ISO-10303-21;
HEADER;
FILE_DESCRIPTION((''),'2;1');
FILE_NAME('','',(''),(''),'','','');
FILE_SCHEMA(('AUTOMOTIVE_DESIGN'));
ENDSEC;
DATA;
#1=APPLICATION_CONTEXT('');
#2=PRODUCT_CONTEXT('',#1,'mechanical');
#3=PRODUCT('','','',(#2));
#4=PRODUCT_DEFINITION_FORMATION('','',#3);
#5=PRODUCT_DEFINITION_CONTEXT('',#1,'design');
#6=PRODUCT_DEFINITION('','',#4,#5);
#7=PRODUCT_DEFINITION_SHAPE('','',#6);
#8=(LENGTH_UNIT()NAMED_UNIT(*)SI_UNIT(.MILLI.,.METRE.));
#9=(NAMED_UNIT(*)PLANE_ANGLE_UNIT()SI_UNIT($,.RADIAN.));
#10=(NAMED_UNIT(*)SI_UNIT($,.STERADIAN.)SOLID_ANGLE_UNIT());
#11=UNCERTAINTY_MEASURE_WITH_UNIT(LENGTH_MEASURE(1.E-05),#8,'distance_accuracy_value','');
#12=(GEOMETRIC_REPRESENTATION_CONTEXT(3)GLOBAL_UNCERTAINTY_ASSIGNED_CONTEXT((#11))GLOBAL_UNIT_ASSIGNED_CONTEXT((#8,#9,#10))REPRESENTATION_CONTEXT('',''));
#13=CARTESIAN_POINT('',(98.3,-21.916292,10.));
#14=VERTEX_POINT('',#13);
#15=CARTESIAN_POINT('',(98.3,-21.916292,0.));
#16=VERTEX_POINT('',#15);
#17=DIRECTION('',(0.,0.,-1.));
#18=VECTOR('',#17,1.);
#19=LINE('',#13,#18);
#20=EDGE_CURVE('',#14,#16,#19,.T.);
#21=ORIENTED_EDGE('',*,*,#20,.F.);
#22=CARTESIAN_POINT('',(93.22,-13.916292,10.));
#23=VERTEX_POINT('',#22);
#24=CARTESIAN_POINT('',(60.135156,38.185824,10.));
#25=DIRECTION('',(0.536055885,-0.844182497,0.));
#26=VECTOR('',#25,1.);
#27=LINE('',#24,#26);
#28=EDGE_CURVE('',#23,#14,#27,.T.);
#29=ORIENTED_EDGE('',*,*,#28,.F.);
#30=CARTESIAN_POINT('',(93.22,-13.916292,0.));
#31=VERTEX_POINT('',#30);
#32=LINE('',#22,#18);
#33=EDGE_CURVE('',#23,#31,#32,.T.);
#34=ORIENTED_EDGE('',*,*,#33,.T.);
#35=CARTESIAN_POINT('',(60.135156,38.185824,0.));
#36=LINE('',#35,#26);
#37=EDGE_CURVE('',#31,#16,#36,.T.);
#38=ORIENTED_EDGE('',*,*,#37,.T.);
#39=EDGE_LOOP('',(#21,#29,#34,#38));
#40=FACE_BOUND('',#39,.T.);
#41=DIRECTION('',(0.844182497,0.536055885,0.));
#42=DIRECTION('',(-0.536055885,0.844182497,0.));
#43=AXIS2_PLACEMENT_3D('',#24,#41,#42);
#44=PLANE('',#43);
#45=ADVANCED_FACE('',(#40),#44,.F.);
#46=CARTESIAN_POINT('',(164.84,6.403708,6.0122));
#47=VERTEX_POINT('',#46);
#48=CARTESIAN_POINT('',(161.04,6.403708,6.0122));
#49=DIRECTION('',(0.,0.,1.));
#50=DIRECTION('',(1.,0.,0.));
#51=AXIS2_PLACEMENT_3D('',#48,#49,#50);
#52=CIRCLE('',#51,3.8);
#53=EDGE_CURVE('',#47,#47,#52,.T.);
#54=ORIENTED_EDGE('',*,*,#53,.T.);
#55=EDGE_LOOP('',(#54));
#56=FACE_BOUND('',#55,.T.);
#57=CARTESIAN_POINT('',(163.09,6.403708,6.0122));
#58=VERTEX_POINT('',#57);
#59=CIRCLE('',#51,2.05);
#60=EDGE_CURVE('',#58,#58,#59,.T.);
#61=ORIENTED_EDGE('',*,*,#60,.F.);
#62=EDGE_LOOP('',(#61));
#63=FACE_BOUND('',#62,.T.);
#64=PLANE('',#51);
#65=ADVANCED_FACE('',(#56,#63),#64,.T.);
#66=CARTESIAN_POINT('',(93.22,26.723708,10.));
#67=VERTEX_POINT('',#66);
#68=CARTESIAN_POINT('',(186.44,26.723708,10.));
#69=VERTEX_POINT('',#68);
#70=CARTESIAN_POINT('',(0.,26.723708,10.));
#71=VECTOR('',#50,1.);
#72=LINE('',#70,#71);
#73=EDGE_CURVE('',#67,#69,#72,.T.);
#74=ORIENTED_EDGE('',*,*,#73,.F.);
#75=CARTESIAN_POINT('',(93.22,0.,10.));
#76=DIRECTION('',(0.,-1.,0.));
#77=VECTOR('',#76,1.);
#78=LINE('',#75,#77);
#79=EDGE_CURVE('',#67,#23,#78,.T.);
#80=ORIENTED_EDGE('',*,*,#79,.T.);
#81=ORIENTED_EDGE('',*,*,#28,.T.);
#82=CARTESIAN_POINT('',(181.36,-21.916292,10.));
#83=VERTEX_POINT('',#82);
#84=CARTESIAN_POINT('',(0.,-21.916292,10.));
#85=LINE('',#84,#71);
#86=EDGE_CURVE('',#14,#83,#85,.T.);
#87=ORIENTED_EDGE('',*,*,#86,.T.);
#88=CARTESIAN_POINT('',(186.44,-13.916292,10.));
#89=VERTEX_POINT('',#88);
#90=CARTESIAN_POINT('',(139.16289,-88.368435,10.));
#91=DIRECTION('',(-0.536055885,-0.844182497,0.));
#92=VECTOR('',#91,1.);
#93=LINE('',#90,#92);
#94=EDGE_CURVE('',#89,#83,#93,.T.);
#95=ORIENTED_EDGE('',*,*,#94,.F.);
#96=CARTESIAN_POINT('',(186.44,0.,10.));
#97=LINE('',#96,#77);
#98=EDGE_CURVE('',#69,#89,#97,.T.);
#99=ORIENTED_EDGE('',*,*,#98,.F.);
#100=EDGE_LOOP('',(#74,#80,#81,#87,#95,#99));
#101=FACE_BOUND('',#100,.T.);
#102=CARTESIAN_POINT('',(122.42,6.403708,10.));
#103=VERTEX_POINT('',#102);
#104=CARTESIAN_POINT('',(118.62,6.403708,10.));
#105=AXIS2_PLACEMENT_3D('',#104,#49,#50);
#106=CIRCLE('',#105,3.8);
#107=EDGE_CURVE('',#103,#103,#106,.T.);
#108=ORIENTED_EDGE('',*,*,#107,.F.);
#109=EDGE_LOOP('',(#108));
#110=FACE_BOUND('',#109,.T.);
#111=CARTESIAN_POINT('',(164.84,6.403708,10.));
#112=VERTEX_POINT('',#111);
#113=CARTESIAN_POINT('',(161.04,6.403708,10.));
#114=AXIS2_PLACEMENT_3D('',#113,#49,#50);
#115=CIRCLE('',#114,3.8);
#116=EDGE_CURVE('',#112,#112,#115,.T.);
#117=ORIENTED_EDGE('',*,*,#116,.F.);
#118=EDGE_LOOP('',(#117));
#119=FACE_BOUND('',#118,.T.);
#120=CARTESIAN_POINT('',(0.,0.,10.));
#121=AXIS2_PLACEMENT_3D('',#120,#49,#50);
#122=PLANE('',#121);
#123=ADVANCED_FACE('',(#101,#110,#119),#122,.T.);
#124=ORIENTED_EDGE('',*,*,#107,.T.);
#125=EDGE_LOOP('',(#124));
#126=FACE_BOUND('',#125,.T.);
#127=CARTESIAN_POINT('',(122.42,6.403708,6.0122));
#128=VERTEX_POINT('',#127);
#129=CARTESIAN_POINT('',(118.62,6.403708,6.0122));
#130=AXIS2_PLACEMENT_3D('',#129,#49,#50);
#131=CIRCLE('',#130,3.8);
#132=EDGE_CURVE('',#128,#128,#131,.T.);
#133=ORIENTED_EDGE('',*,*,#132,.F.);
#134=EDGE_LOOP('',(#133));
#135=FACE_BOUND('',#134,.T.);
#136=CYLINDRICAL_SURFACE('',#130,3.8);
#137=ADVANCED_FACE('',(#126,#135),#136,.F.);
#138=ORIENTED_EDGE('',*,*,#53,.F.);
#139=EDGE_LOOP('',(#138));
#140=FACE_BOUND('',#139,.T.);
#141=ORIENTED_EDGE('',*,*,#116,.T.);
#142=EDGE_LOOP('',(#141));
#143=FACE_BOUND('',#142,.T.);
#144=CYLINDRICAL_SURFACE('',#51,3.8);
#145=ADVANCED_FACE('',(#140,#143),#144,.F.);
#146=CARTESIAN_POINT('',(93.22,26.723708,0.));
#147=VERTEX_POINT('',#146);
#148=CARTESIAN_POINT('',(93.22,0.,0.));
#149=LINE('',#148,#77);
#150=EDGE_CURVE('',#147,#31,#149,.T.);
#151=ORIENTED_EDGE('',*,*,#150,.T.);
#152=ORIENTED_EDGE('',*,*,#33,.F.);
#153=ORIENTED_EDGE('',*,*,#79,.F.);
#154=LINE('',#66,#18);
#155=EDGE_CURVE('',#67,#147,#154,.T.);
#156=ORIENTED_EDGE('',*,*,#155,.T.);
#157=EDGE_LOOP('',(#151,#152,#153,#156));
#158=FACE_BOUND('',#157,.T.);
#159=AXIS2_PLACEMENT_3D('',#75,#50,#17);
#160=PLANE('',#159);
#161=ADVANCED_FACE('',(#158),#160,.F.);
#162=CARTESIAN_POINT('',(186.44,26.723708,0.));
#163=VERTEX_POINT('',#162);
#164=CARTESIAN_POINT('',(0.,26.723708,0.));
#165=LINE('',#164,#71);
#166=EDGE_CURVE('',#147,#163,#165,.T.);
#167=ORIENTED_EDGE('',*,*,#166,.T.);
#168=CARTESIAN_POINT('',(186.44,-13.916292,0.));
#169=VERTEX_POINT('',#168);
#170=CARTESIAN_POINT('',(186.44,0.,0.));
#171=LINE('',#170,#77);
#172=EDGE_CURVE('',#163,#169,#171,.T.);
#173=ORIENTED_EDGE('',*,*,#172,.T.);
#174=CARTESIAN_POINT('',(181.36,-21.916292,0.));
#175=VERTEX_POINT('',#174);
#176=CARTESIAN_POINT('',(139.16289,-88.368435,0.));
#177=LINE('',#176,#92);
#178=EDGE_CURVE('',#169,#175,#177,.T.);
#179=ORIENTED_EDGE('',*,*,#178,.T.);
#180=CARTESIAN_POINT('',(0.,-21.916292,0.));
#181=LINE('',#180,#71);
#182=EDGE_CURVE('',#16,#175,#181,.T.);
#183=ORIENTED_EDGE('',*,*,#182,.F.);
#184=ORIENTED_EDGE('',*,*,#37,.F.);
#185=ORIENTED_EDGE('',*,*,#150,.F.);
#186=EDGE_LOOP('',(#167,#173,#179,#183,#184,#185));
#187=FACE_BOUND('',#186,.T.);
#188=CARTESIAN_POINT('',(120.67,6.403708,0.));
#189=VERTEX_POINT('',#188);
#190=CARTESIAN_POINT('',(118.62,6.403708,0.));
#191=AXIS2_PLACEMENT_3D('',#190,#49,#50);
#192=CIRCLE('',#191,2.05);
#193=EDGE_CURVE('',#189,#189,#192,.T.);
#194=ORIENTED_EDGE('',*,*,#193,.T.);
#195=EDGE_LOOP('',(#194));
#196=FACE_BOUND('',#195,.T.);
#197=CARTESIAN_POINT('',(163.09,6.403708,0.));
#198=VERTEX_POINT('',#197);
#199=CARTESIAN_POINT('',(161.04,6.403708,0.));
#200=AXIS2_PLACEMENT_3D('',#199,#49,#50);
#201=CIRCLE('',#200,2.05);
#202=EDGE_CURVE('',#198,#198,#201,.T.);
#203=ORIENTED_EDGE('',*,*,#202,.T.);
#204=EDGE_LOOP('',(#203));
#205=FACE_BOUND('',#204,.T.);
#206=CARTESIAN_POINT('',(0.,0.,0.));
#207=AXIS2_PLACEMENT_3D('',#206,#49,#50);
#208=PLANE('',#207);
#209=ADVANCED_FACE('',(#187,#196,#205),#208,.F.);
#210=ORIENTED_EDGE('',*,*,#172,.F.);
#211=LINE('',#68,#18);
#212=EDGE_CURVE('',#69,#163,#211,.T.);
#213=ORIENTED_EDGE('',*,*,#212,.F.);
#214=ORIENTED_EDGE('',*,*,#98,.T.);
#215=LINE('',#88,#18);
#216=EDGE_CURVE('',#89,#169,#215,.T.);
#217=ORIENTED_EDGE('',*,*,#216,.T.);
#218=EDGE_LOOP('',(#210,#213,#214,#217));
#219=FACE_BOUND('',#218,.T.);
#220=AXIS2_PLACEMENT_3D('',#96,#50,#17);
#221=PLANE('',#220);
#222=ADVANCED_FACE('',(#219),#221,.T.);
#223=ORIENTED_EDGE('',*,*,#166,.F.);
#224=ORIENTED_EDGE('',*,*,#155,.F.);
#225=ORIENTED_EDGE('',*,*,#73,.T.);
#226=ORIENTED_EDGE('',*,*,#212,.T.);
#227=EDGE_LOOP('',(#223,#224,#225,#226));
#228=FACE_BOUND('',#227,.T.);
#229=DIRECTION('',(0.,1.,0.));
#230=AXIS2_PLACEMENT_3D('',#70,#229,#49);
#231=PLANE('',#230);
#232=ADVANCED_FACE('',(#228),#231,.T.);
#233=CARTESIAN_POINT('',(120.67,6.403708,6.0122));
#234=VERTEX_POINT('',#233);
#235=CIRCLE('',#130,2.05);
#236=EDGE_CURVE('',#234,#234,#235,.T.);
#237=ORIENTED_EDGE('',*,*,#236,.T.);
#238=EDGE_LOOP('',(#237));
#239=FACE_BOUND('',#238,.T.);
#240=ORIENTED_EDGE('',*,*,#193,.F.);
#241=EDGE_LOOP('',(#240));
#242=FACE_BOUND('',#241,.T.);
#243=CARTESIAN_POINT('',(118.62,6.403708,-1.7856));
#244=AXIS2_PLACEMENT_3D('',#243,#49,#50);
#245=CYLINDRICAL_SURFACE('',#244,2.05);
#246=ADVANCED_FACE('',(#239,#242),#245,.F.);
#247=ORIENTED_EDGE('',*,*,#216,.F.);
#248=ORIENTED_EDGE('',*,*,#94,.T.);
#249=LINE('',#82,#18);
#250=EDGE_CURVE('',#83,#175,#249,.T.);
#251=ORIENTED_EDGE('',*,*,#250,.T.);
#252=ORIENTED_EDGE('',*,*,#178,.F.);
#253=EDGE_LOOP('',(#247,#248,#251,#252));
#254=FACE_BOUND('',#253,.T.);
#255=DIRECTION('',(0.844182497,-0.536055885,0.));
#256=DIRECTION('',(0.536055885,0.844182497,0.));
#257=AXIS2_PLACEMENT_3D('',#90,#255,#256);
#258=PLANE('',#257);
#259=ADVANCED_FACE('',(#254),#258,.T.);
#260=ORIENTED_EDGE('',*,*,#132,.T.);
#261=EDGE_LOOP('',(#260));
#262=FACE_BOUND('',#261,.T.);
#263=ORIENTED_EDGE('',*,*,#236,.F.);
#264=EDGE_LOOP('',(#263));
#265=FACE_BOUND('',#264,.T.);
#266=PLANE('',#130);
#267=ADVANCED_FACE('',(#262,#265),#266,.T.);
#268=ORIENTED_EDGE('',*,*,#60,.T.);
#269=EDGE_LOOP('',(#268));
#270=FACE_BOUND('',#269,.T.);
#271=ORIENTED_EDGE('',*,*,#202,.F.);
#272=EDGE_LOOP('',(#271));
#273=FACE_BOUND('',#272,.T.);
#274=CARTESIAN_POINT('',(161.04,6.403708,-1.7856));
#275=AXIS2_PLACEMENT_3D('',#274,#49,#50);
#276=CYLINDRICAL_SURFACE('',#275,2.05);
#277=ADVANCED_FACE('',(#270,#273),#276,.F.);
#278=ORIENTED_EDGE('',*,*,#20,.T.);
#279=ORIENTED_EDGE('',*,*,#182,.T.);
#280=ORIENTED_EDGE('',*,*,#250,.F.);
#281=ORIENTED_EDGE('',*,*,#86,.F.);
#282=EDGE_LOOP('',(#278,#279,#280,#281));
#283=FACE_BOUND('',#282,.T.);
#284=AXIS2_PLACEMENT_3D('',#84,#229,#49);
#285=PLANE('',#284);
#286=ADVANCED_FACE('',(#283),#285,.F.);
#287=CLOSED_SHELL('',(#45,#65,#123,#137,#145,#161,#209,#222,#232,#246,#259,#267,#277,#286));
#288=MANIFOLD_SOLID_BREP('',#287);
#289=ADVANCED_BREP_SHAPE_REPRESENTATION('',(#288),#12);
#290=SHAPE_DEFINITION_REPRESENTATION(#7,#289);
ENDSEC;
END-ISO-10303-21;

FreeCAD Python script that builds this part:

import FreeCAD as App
import Part
import Sketcher
from FreeCAD import Vector
Q = App.Units.Quantity

doc = App.newDocument("Part")
body = doc.addObject("PartDesign::Body", "Body")

sketch1 = body.newObject("Sketcher::SketchObject", "Sketch")
sketch1.AttachmentSupport = (doc.getObject("XY_Plane"), [""])
sketch1.MapMode = "FlatFace"
sketch1.addGeometry([
    Part.LineSegment(Vector(181.36, -21.916292, 0), Vector(186.44, -13.916292, 0)),
    Part.LineSegment(Vector(186.44, -13.916292, 0), Vector(186.44, 26.723708, 0)),
    Part.LineSegment(Vector(186.44, 26.723708, 0), Vector(93.22, 26.723708, 0)),
    Part.LineSegment(Vector(93.22, 26.723708, 0), Vector(93.22, -13.916292, 0)),
    Part.LineSegment(Vector(93.22, -13.916292, 0), Vector(98.3, -21.916292, 0)),
    Part.LineSegment(Vector(98.3, -21.916292, 0), Vector(181.36, -21.916292, 0)),
], False)
sketch1.addConstraint([
    Sketcher.Constraint("Coincident", 0, 2, 1, 1),
    Sketcher.Constraint("Coincident", 1, 2, 2, 1),
    Sketcher.Constraint("Coincident", 2, 2, 3, 1),
    Sketcher.Constraint("Coincident", 3, 2, 4, 1),
    Sketcher.Constraint("Coincident", 4, 2, 5, 1),
    Sketcher.Constraint("Coincident", 5, 2, 0, 1),
    Sketcher.Constraint("Vertical", 1),
    Sketcher.Constraint("Horizontal", 2),
    Sketcher.Constraint("Vertical", 3),
    Sketcher.Constraint("Horizontal", 5),
    Sketcher.Constraint("Horizontal", 0, 2, 3, 2),
    Sketcher.Constraint("Equal", 0, 4),
    Sketcher.Constraint("DistanceY", 4, 2, 3, 2, Q("8 mm")),
    Sketcher.Constraint("DistanceX", 2, 2, 2, 1, Q("93.22 mm")),
    Sketcher.Constraint("DistanceX", 5, 1, 5, 2, Q("83.06 mm")),
    Sketcher.Constraint("DistanceY", 1, 1, 1, 2, Q("40.64 mm")),
    Sketcher.Constraint("DistanceX", -1, 1, 4, 2, Q("98.3 mm")),
    Sketcher.Constraint("DistanceY", 0, 2, -1, 1, Q("13.916292 mm")),
])
pad1 = body.newObject("PartDesign::Pad", "Pad")
pad1.Profile = sketch1
pad1.Length = 10

sketch2 = body.newObject("Sketcher::SketchObject", "Sketch001")
sketch2.AttachmentSupport = (doc.getObject("XY_Plane"), [""])
sketch2.MapMode = "FlatFace"
sketch2.AttachmentOffset = App.Placement(Vector(0, 0, 10), App.Rotation())
sketch2.addGeometry([
    Part.Circle(Vector(118.62, 6.403708, 0), Vector(0, 0, 1), 3.8),
    Part.Circle(Vector(161.04, 6.403708, 0), Vector(0, 0, 1), 3.8),
], False)
sketch2.addConstraint([
    Sketcher.Constraint("Equal", 0, 1),
    Sketcher.Constraint("Horizontal", 0, 3, 1, 3),
    Sketcher.Constraint("Diameter", 0, Q("7.6 mm")),
    Sketcher.Constraint("DistanceX", -1, 1, 0, 3, Q("118.62 mm")),
    Sketcher.Constraint("DistanceX", -1, 1, 1, 3, Q("161.04 mm")),
    Sketcher.Constraint("DistanceY", -1, 1, 0, 3, Q("6.403708 mm")),
])
pocket1 = body.newObject("PartDesign::Pocket", "Pocket")
pocket1.Profile = sketch2
pocket1.Length = 3.9878

sketch3 = body.newObject("Sketcher::SketchObject", "Sketch002")
sketch3.AttachmentSupport = (doc.getObject("XY_Plane"), [""])
sketch3.MapMode = "FlatFace"
sketch3.AttachmentOffset = App.Placement(Vector(0, 0, 6.0122), App.Rotation())
sketch3.addGeometry(Part.Circle(Vector(118.62, 6.403708, 0), Vector(0, 0, 1), 2.05), False)
sketch3.addConstraint([
    Sketcher.Constraint("Diameter", 0, Q("4.1 mm")),
    Sketcher.Constraint("DistanceX", -1, 1, 0, 3, Q("118.62 mm")),
    Sketcher.Constraint("DistanceY", -1, 1, 0, 3, Q("6.403708 mm")),
])
pocket2 = body.newObject("PartDesign::Pocket", "Pocket001")
pocket2.Profile = sketch3
pocket2.Length = 7.7978

sketch4 = body.newObject("Sketcher::SketchObject", "Sketch003")
sketch4.AttachmentSupport = (doc.getObject("XY_Plane"), [""])
sketch4.MapMode = "FlatFace"
sketch4.AttachmentOffset = App.Placement(Vector(0, 0, 6.0122), App.Rotation())
sketch4.addGeometry(Part.Circle(Vector(161.04, 6.403708, 0), Vector(0, 0, 1), 2.05), False)
sketch4.addConstraint([
    Sketcher.Constraint("Diameter", 0, Q("4.1 mm")),
    Sketcher.Constraint("DistanceX", -1, 1, 0, 3, Q("161.04 mm")),
    Sketcher.Constraint("DistanceY", -1, 1, 0, 3, Q("6.403708 mm")),
])
pocket3 = body.newObject("PartDesign::Pocket", "Pocket002")
pocket3.Profile = sketch4
pocket3.Length = 7.7978

doc.recompute()
